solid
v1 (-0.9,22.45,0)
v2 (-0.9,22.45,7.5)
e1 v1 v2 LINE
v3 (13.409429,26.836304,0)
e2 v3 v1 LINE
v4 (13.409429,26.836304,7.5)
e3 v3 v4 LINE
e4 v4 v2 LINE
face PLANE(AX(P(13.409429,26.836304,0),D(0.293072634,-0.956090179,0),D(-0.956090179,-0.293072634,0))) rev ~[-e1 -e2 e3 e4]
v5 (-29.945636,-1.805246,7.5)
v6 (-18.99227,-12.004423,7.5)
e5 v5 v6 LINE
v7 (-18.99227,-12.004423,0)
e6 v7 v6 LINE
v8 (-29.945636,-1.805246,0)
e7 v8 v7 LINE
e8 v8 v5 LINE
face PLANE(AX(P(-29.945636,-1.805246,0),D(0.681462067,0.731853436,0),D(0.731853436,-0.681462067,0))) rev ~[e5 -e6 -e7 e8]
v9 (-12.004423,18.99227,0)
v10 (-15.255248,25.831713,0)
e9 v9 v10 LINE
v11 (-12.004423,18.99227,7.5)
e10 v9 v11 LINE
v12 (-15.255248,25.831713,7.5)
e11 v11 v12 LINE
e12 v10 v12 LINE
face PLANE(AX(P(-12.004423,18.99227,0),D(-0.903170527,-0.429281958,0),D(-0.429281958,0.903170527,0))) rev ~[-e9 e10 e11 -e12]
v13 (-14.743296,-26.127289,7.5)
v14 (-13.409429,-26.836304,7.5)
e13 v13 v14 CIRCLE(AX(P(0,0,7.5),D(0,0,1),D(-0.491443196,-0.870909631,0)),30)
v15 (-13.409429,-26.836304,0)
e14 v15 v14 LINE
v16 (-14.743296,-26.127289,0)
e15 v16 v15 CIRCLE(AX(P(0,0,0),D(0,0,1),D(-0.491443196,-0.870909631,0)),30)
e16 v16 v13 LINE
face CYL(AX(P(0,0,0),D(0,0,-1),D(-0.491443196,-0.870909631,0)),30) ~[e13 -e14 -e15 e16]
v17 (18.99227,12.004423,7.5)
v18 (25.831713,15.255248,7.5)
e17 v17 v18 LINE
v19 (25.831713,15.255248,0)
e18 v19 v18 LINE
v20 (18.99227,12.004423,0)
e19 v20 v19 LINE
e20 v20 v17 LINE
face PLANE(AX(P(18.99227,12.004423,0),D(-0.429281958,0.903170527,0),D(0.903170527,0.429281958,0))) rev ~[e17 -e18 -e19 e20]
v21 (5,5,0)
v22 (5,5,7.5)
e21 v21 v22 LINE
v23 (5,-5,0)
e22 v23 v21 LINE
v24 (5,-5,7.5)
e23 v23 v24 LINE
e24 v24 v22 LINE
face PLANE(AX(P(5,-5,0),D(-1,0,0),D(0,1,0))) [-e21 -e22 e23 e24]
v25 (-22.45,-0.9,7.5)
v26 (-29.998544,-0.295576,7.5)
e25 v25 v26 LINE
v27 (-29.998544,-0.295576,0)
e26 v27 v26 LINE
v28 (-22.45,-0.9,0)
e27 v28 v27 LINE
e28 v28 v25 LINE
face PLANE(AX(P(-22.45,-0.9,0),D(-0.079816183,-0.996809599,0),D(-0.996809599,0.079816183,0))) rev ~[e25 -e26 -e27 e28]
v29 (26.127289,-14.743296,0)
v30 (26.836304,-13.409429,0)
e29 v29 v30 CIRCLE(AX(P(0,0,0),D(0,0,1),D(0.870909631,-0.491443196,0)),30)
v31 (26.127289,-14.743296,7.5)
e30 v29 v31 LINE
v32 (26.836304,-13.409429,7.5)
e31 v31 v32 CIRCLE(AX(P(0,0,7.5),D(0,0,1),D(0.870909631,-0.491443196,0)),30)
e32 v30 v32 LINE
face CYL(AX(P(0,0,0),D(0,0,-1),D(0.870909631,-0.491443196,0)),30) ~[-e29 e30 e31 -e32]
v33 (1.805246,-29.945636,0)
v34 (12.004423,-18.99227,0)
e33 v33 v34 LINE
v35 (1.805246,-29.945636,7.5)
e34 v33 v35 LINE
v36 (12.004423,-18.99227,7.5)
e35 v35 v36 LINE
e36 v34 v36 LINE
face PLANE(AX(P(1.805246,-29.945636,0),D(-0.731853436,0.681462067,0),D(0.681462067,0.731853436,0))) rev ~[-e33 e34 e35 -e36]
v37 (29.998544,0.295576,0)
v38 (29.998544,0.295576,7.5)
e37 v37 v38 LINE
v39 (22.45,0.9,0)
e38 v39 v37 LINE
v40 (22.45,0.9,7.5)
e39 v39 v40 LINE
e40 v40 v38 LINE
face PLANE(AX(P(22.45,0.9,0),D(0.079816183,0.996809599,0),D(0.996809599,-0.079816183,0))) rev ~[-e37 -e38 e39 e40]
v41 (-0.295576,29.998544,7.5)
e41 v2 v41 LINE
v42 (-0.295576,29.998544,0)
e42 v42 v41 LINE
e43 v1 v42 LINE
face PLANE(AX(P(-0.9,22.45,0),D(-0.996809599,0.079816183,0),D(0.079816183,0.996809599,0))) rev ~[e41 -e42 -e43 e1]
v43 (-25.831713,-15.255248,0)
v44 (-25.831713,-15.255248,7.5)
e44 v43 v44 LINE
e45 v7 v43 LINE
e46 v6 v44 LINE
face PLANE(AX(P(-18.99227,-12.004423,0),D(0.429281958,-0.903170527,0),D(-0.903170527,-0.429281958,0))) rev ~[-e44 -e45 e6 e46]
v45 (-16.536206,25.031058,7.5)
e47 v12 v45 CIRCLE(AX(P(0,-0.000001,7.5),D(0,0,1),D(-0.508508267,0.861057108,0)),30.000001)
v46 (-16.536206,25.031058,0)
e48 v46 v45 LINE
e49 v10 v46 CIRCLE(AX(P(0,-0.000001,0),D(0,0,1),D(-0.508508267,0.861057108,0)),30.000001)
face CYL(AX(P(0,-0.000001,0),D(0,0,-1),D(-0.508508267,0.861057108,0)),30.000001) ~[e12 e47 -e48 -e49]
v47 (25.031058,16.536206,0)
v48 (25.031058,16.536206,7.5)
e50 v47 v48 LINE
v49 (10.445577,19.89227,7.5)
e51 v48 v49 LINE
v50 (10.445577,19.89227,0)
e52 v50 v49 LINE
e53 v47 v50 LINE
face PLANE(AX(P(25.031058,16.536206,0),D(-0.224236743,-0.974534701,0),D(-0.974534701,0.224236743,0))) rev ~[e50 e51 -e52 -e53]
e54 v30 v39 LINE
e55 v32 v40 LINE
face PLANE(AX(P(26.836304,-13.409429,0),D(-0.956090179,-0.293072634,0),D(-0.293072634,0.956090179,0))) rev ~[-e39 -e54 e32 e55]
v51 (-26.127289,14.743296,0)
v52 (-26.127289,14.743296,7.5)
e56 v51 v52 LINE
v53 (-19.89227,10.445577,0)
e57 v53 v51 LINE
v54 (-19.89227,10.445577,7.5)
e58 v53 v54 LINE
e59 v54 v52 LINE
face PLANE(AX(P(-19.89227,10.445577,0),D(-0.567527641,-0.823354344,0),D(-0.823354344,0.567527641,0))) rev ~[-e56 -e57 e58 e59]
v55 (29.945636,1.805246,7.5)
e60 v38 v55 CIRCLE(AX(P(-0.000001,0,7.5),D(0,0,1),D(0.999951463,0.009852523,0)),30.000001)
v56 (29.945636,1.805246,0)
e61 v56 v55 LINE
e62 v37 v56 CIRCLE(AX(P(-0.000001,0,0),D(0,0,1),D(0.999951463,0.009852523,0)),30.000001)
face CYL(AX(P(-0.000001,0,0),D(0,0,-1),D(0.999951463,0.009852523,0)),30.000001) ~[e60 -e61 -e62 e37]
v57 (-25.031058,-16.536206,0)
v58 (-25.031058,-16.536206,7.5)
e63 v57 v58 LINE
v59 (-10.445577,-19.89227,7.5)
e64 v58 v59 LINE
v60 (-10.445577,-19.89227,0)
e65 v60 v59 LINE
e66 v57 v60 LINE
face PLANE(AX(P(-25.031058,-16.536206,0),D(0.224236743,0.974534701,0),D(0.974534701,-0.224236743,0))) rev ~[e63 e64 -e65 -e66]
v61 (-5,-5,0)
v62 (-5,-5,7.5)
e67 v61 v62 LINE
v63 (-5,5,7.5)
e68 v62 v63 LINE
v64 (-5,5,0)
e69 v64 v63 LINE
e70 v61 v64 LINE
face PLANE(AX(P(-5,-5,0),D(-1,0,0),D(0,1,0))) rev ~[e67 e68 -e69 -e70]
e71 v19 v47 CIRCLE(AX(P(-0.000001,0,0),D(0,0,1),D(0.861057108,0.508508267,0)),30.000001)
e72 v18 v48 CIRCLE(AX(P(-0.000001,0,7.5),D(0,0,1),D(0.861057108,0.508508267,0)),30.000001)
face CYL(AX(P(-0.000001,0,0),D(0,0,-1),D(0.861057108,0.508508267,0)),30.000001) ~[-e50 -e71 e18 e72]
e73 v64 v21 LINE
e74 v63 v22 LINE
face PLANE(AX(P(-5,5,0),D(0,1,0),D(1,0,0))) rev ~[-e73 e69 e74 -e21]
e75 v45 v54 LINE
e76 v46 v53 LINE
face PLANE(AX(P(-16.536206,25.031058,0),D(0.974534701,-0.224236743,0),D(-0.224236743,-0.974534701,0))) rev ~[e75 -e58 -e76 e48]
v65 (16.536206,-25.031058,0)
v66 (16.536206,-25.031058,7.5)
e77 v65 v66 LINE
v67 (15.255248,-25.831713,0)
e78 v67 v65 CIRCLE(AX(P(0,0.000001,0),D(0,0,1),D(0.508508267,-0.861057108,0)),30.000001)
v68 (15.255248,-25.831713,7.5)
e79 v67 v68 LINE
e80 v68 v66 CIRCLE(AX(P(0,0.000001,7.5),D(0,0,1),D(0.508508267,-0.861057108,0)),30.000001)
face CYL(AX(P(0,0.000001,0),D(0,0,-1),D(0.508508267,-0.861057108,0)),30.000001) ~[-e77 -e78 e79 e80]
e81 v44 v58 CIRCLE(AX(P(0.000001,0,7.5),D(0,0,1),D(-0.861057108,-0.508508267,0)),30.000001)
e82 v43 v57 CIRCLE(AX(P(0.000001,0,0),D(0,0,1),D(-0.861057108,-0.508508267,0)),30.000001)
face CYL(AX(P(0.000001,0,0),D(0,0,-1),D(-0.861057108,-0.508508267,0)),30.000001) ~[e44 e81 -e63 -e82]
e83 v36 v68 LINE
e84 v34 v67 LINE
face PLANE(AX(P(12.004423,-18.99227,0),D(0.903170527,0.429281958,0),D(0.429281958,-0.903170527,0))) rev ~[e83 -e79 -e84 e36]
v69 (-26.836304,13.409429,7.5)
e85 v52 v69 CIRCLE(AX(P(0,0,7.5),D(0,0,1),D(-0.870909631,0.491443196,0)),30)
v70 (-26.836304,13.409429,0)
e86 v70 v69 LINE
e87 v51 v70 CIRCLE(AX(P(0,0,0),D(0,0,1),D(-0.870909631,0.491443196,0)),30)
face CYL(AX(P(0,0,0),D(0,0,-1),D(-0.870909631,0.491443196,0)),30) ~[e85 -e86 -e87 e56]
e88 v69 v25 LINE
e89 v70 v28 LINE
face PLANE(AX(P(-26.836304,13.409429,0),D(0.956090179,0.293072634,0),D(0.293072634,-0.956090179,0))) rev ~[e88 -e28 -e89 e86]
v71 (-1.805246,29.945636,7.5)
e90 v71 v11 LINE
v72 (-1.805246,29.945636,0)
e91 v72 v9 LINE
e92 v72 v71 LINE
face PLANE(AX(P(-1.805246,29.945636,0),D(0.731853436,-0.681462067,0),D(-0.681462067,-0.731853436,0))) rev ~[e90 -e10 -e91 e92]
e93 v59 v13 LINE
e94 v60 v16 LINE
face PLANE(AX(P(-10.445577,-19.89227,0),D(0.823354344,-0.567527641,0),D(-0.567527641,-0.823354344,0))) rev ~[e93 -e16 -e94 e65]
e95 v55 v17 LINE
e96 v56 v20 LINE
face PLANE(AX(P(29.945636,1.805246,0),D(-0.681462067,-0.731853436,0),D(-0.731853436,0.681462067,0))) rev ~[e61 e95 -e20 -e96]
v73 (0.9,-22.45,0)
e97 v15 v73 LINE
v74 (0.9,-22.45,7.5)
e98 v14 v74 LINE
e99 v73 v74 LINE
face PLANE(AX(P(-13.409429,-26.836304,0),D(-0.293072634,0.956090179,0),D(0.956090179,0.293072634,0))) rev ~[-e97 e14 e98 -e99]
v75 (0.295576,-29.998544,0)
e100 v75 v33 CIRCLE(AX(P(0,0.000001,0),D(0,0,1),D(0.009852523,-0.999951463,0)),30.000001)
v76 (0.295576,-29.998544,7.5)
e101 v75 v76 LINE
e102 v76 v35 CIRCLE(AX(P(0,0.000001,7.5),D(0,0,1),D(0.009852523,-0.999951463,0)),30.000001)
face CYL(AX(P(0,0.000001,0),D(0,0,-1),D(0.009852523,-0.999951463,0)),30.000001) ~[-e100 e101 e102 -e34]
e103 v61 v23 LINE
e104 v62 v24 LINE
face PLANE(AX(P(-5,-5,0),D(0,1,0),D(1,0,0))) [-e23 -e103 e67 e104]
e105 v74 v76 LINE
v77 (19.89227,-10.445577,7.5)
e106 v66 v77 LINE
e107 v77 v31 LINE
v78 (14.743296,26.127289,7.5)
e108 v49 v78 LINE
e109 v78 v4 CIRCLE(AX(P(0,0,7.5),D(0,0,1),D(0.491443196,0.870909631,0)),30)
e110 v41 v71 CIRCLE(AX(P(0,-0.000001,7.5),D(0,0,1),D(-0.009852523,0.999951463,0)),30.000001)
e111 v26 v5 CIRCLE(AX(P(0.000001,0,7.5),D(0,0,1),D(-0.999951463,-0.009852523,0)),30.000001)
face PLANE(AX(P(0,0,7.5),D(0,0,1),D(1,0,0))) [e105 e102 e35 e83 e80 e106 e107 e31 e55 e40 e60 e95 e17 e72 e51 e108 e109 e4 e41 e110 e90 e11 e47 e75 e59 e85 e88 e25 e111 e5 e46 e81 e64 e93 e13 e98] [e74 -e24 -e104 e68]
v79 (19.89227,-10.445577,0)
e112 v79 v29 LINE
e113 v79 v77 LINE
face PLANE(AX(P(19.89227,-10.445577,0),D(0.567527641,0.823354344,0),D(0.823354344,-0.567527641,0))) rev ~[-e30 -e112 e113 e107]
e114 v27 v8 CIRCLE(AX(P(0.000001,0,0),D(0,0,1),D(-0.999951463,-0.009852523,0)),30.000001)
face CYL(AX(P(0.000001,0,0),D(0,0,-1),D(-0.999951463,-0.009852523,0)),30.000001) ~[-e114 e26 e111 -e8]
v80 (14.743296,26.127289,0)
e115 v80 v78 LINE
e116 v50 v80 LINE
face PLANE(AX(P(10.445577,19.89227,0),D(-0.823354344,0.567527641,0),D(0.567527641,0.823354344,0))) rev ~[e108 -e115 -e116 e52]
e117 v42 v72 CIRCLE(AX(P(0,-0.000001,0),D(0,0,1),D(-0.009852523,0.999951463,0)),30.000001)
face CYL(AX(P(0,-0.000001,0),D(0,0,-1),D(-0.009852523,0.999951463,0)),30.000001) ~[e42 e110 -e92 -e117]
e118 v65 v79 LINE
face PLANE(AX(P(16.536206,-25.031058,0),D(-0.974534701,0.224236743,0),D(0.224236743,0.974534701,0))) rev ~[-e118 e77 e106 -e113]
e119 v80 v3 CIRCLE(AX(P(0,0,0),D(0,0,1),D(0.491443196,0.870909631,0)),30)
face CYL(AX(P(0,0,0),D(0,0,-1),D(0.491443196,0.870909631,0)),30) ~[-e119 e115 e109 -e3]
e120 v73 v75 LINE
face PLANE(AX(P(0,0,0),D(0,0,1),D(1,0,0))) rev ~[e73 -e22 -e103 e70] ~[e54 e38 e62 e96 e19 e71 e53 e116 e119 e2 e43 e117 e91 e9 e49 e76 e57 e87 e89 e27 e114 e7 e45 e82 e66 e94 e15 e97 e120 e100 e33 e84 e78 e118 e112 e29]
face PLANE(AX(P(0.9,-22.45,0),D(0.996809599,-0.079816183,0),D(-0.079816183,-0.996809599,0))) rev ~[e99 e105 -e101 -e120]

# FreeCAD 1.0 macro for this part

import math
import FreeCAD as App
import Part
import Sketcher

doc = App.newDocument("Part")
body = doc.addObject("PartDesign::Body", "Body")

sketch1 = body.newObject("Sketcher::SketchObject", "Sketch")
sketch1.AttachmentSupport = (doc.getObject("XY_Plane"), [""])
sketch1.MapMode = "FlatFace"
sketch1.addGeometry([
    Part.LineSegment(App.Vector(13.409429, 26.836304, 0), App.Vector(-0.9, 22.45, 0)),
    Part.LineSegment(App.Vector(-0.9, 22.45, 0), App.Vector(-0.295576, 29.998544, 0)),
    Part.ArcOfCircle(Part.Circle(App.Vector(0, -0.000001, 0), App.Vector(0, 0, 1), 30.000001), math.radians(90.564517), math.radians(93.449849)),
    Part.LineSegment(App.Vector(-1.805246, 29.945636, 0), App.Vector(-12.004423, 18.99227, 0)),
    Part.LineSegment(App.Vector(-12.004423, 18.99227, 0), App.Vector(-15.255248, 25.831713, 0)),
    Part.ArcOfCircle(Part.Circle(App.Vector(0, -0.000001, 0), App.Vector(0, 0, 1), 30.000001), math.radians(120.564517), math.radians(123.449849)),
    Part.LineSegment(App.Vector(-16.536206, 25.031058, 0), App.Vector(-19.89227, 10.445577, 0)),
    Part.LineSegment(App.Vector(-19.89227, 10.445577, 0), App.Vector(-26.127289, 14.743296, 0)),
    Part.ArcOfCircle(Part.Circle(App.Vector(0, 0, 0), App.Vector(0, 0, 1), 30), math.radians(150.564517), math.radians(153.449849)),
    Part.LineSegment(App.Vector(-26.836304, 13.409429, 0), App.Vector(-22.45, -0.9, 0)),
    Part.LineSegment(App.Vector(-22.45, -0.9, 0), App.Vector(-29.998544, -0.295576, 0)),
    Part.ArcOfCircle(Part.Circle(App.Vector(0.000001, 0, 0), App.Vector(0, 0, 1), 30.000001), math.radians(-179.435483), math.radians(-176.550151)),
    Part.LineSegment(App.Vector(-29.945636, -1.805246, 0), App.Vector(-18.99227, -12.004423, 0)),
    Part.LineSegment(App.Vector(-18.99227, -12.004423, 0), App.Vector(-25.831713, -15.255248, 0)),
    Part.ArcOfCircle(Part.Circle(App.Vector(0.000001, 0, 0), App.Vector(0, 0, 1), 30.000001), math.radians(-149.435483), math.radians(-146.550151)),
    Part.LineSegment(App.Vector(-25.031058, -16.536206, 0), App.Vector(-10.445577, -19.89227, 0)),
    Part.LineSegment(App.Vector(-10.445577, -19.89227, 0), App.Vector(-14.743296, -26.127289, 0)),
    Part.ArcOfCircle(Part.Circle(App.Vector(0, 0, 0), App.Vector(0, 0, 1), 30), math.radians(-119.435483), math.radians(-116.550151)),
    Part.LineSegment(App.Vector(-13.409429, -26.836304, 0), App.Vector(0.9, -22.45, 0)),
    Part.LineSegment(App.Vector(0.9, -22.45, 0), App.Vector(0.295576, -29.998544, 0)),
    Part.ArcOfCircle(Part.Circle(App.Vector(0, 0.000001, 0), App.Vector(0, 0, 1), 30.000001), math.radians(-89.435483), math.radians(-86.550151)),
    Part.LineSegment(App.Vector(1.805246, -29.945636, 0), App.Vector(12.004423, -18.99227, 0)),
    Part.LineSegment(App.Vector(12.004423, -18.99227, 0), App.Vector(15.255248, -25.831713, 0)),
    Part.ArcOfCircle(Part.Circle(App.Vector(0, 0.000001, 0), App.Vector(0, 0, 1), 30.000001), math.radians(-59.435483), math.radians(-56.550151)),
    Part.LineSegment(App.Vector(16.536206, -25.031058, 0), App.Vector(19.89227, -10.445577, 0)),
    Part.LineSegment(App.Vector(19.89227, -10.445577, 0), App.Vector(26.127289, -14.743296, 0)),
    Part.ArcOfCircle(Part.Circle(App.Vector(0, 0, 0), App.Vector(0, 0, 1), 30), math.radians(-29.435483), math.radians(-26.550151)),
    Part.LineSegment(App.Vector(26.836304, -13.409429, 0), App.Vector(22.45, 0.9, 0)),
    Part.LineSegment(App.Vector(22.45, 0.9, 0), App.Vector(29.998544, 0.295576, 0)),
    Part.ArcOfCircle(Part.Circle(App.Vector(-0.000001, 0, 0), App.Vector(0, 0, 1), 30.000001), math.radians(0.564517), math.radians(3.449849)),
    Part.LineSegment(App.Vector(29.945636, 1.805246, 0), App.Vector(18.99227, 12.004423, 0)),
    Part.LineSegment(App.Vector(18.99227, 12.004423, 0), App.Vector(25.831713, 15.255248, 0)),
    Part.ArcOfCircle(Part.Circle(App.Vector(-0.000001, 0, 0), App.Vector(0, 0, 1), 30.000001), math.radians(30.564517), math.radians(33.449849)),
    Part.LineSegment(App.Vector(25.031058, 16.536206, 0), App.Vector(10.445577, 19.89227, 0)),
    Part.LineSegment(App.Vector(10.445577, 19.89227, 0), App.Vector(14.743296, 26.127289, 0)),
    Part.ArcOfCircle(Part.Circle(App.Vector(0, 0, 0), App.Vector(0, 0, 1), 30), math.radians(60.564517), math.radians(63.449849)),
    Part.LineSegment(App.Vector(5, -5, 0), App.Vector(-5, -5, 0)),
    Part.LineSegment(App.Vector(-5, -5, 0), App.Vector(-5, 5, 0)),
    Part.LineSegment(App.Vector(-5, 5, 0), App.Vector(5, 5, 0)),
    Part.LineSegment(App.Vector(5, 5, 0), App.Vector(5, -5, 0)),
], False)
sketch1.addConstraint([
    Sketcher.Constraint("Coincident", 0, 2, 1, 1),
    Sketcher.Constraint("Coincident", 1, 2, 2, 1),
    Sketcher.Constraint("Coincident", 2, 2, 3, 1),
    Sketcher.Constraint("Coincident", 3, 2, 4, 1),
    Sketcher.Constraint("Coincident", 4, 2, 5, 1),
    Sketcher.Constraint("Coincident", 5, 2, 6, 1),
    Sketcher.Constraint("Coincident", 6, 2, 7, 1),
    Sketcher.Constraint("Coincident", 7, 2, 8, 1),
    Sketcher.Constraint("Coincident", 8, 2, 9, 1),
    Sketcher.Constraint("Coincident", 9, 2, 10, 1),
    Sketcher.Constraint("Coincident", 10, 2, 11, 1),
    Sketcher.Constraint("Coincident", 11, 2, 12, 1),
    Sketcher.Constraint("Coincident", 12, 2, 13, 1),
    Sketcher.Constraint("Coincident", 13, 2, 14, 1),
    Sketcher.Constraint("Coincident", 14, 2, 15, 1),
    Sketcher.Constraint("Coincident", 15, 2, 16, 1),
    Sketcher.Constraint("Coincident", 16, 2, 17, 1),
    Sketcher.Constraint("Coincident", 17, 2, 18, 1),
    Sketcher.Constraint("Coincident", 18, 2, 19, 1),
    Sketcher.Constraint("Coincident", 19, 2, 20, 1),
    Sketcher.Constraint("Coincident", 20, 2, 21, 1),
    Sketcher.Constraint("Coincident", 21, 2, 22, 1),
    Sketcher.Constraint("Coincident", 22, 2, 23, 1),
    Sketcher.Constraint("Coincident", 23, 2, 24, 1),
    Sketcher.Constraint("Coincident", 24, 2, 25, 1),
    Sketcher.Constraint("Coincident", 25, 2, 26, 1),
    Sketcher.Constraint("Coincident", 26, 2, 27, 1),
    Sketcher.Constraint("Coincident", 27, 2, 28, 1),
    Sketcher.Constraint("Coincident", 28, 2, 29, 1),
    Sketcher.Constraint("Coincident", 29, 2, 30, 1),
    Sketcher.Constraint("Coincident", 30, 2, 31, 1),
    Sketcher.Constraint("Coincident", 31, 2, 32, 1),
    Sketcher.Constraint("Coincident", 32, 2, 33, 1),
    Sketcher.Constraint("Coincident", 33, 2, 34, 1),
    Sketcher.Constraint("Coincident", 34, 2, 35, 1),
    Sketcher.Constraint("Coincident", 35, 2, 0, 1),
    Sketcher.Constraint("Coincident", 36, 2, 37, 1),
    Sketcher.Constraint("Coincident", 37, 2, 38, 1),
    Sketcher.Constraint("Coincident", 38, 2, 39, 1),
    Sketcher.Constraint("Coincident", 39, 2, 36, 1),
    Sketcher.Constraint("Horizontal", 36),
    Sketcher.Constraint("Vertical", 37),
    Sketcher.Constraint("Horizontal", 38),
    Sketcher.Constraint("Vertical", 39),
    Sketcher.Constraint("Coincident", 2, 3, -1, 1),
    Sketcher.Constraint("Coincident", 5, 3, -1, 1),
    Sketcher.Constraint("Coincident", 8, 3, -1, 1),
    Sketcher.Constraint("Coincident", 11, 3, -1, 1),
    Sketcher.Constraint("Coincident", 14, 3, -1, 1),
    Sketcher.Constraint("Coincident", 17, 3, -1, 1),
    Sketcher.Constraint("Coincident", 20, 3, -1, 1),
    Sketcher.Constraint("Coincident", 23, 3, -1, 1),
    Sketcher.Constraint("Coincident", 26, 3, -1, 1),
    Sketcher.Constraint("Coincident", 29, 3, -1, 1),
    Sketcher.Constraint("Coincident", 32, 3, -1, 1),
    Sketcher.Constraint("Coincident", 35, 3, -1, 1),
    Sketcher.Constraint("Radius", 2, 30.000001),
    Sketcher.Constraint("Radius", 5, 30.000001),
    Sketcher.Constraint("Radius", 8, 30.0),
    Sketcher.Constraint("Radius", 11, 30.000001),
    Sketcher.Constraint("Radius", 14, 30.000001),
    Sketcher.Constraint("Radius", 17, 30.0),
    Sketcher.Constraint("Radius", 20, 30.000001),
    Sketcher.Constraint("Radius", 23, 30.000001),
    Sketcher.Constraint("Radius", 26, 30.0),
    Sketcher.Constraint("Radius", 29, 30.000001),
    Sketcher.Constraint("Radius", 32, 30.000001),
    Sketcher.Constraint("Radius", 35, 30.0),
    Sketcher.Constraint("DistanceX", 36, 2, 36, 1, 10.0),
    Sketcher.Constraint("DistanceY", 37, 1, 37, 2, 10.0),
    Sketcher.Constraint("DistanceX", 36, 2, -1, 1, 5.0),
    Sketcher.Constraint("DistanceY", 36, 2, -1, 1, 5.0),
    Sketcher.Constraint("DistanceX", 0, 2, -1, 1, 0.9),
    Sketcher.Constraint("DistanceY", 9, 2, -1, 1, 0.9),
    Sketcher.Constraint("DistanceX", -1, 1, 18, 2, 0.9),
    Sketcher.Constraint("DistanceY", -1, 1, 27, 2, 0.9),
    Sketcher.Constraint("DistanceY", -1, 1, 0, 2, 22.45),
    Sketcher.Constraint("DistanceX", 9, 2, -1, 1, 22.45),
    Sketcher.Constraint("DistanceY", 18, 2, -1, 1, 22.45),
    Sketcher.Constraint("DistanceX", -1, 1, 27, 2, 22.45),
    Sketcher.Constraint("Distance", 0, 14.96661),
    Sketcher.Constraint("Distance", 3, 14.96661),
    Sketcher.Constraint("Distance", 6, 14.96661),
    Sketcher.Constraint("Distance", 9, 14.96661),
    Sketcher.Constraint("Distance", 12, 14.96661),
    Sketcher.Constraint("Distance", 15, 14.96661),
    Sketcher.Constraint("Distance", 18, 14.96661),
    Sketcher.Constraint("Distance", 21, 14.96661),
    Sketcher.Constraint("Distance", 24, 14.96661),
    Sketcher.Constraint("Distance", 27, 14.96661),
    Sketcher.Constraint("Distance", 30, 14.96661),
    Sketcher.Constraint("Distance", 33, 14.96661),
    Sketcher.Constraint("DistanceY", -1, 1, 3, 2, 18.99227),
    Sketcher.Constraint("DistanceY", -1, 1, 5, 2, 25.031058),
    Sketcher.Constraint("DistanceX", 6, 2, -1, 1, 19.89227),
    Sketcher.Constraint("DistanceX", 7, 2, -1, 1, 26.127289),
    Sketcher.Constraint("DistanceX", 12, 2, -1, 1, 18.99227),
    Sketcher.Constraint("DistanceX", 14, 2, -1, 1, 25.031058),
    Sketcher.Constraint("DistanceY", 15, 2, -1, 1, 19.89227),
    Sketcher.Constraint("DistanceY", 16, 2, -1, 1, 26.127289),
    Sketcher.Constraint("DistanceY", 21, 2, -1, 1, 18.99227),
    Sketcher.Constraint("DistanceY", 23, 2, -1, 1, 25.031058),
    Sketcher.Constraint("DistanceX", -1, 1, 24, 2, 19.89227),
    Sketcher.Constraint("DistanceX", -1, 1, 25, 2, 26.127289),
    Sketcher.Constraint("DistanceX", -1, 1, 30, 2, 18.99227),
    Sketcher.Constraint("DistanceX", -1, 1, 32, 2, 25.031058),
    Sketcher.Constraint("DistanceY", -1, 1, 33, 2, 19.89227),
    Sketcher.Constraint("DistanceY", -1, 1, 34, 2, 26.127289),
    Sketcher.Constraint("DistanceX", 2, 2, 1, 2, 1.50967),
    Sketcher.Constraint("DistanceY", 2, 2, 1, 2, 0.052908),
    Sketcher.Constraint("DistanceY", 4, 2, 1, 2, 4.166831),
    Sketcher.Constraint("DistanceY", 10, 2, 7, 2, 15.038872),
    Sketcher.Constraint("DistanceX", 10, 2, 11, 2, 0.052908),
    Sketcher.Constraint("DistanceX", 10, 2, 13, 2, 4.166831),
    Sketcher.Constraint("DistanceX", 16, 2, 19, 2, 15.038872),
    Sketcher.Constraint("DistanceX", 19, 2, 20, 2, 1.50967),
    Sketcher.Constraint("DistanceY", 19, 2, 22, 2, 4.166831),
    Sketcher.Constraint("DistanceY", 25, 2, 28, 2, 15.038872),
    Sketcher.Constraint("DistanceX", 29, 2, 28, 2, 0.052908),
    Sketcher.Constraint("DistanceX", 31, 2, 28, 2, 4.166831),
])
pad1 = body.newObject("PartDesign::Pad", "Pad")
pad1.Profile = sketch1
pad1.Length = 7.5

doc.recompute()
